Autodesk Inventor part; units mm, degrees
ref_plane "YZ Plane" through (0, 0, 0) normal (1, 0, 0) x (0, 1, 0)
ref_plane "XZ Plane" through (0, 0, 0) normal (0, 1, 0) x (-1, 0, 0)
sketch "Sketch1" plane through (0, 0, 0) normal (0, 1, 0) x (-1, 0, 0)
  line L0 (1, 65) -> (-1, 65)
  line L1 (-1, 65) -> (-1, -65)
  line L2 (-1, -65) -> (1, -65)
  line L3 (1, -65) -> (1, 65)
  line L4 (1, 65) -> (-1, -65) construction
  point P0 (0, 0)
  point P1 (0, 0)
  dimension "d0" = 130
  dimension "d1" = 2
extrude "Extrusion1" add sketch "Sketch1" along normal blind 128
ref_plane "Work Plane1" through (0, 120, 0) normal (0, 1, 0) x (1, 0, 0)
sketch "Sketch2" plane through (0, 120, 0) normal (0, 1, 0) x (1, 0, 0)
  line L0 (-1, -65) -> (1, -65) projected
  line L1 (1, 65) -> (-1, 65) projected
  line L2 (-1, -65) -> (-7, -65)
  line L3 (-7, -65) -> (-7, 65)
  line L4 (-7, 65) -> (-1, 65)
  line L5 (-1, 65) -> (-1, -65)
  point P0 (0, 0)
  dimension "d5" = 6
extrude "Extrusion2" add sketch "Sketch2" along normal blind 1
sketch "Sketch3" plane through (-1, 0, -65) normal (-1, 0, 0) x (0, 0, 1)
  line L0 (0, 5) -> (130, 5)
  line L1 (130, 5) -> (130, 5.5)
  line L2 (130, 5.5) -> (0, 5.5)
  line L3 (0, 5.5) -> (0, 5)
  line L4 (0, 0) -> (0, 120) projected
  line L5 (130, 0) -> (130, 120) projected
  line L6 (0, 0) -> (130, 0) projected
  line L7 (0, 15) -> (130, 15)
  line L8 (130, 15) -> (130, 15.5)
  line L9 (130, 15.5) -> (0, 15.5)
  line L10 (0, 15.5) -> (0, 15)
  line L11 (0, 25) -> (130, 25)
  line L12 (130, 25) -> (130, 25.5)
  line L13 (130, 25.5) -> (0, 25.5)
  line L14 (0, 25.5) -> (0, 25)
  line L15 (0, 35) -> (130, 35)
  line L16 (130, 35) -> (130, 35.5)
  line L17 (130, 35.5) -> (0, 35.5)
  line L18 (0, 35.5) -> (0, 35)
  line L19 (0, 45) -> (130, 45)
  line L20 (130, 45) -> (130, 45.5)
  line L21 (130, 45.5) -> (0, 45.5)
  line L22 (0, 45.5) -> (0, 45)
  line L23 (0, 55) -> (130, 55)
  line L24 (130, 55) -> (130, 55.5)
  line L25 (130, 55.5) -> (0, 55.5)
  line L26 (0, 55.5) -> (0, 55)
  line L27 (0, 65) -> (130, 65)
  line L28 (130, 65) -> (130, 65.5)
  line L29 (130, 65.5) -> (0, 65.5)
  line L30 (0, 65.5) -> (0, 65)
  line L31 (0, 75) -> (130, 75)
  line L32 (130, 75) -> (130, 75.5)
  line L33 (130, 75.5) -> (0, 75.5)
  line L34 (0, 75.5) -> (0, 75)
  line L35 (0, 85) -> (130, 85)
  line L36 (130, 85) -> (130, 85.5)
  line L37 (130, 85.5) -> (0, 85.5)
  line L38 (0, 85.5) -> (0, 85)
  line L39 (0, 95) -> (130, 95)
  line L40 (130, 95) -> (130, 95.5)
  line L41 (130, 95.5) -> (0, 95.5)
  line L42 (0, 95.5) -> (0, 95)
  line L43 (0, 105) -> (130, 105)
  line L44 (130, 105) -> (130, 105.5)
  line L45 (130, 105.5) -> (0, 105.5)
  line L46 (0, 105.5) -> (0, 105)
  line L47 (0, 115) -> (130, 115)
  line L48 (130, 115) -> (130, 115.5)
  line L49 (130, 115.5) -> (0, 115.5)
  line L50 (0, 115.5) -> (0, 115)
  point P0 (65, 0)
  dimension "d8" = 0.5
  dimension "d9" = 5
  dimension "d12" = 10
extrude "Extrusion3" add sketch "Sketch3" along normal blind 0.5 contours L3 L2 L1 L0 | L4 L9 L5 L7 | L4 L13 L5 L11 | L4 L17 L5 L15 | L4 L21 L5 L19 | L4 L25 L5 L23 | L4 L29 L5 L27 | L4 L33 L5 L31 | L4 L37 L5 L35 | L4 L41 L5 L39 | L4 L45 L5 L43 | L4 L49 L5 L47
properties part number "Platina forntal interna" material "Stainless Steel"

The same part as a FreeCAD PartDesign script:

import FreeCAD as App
import Part
import Sketcher

doc = App.newDocument("Part")
body = doc.addObject("PartDesign::Body", "Body")

sketch1 = body.newObject("Sketcher::SketchObject", "Sketch")
sketch1.AttachmentSupport = (doc.getObject("XZ_Plane"), [""])
sketch1.MapMode = "FlatFace"
sketch1.addGeometry(Part.LineSegment(App.Vector(-1, -65, 0), App.Vector(-1, 65, 0)), False)
sketch1.addGeometry(Part.LineSegment(App.Vector(-1, 65, 0), App.Vector(1, 65, 0)), False)
sketch1.addGeometry(Part.LineSegment(App.Vector(1, 65, 0), App.Vector(1, -65, 0)), False)
sketch1.addGeometry(Part.LineSegment(App.Vector(1, -65, 0), App.Vector(-1, -65, 0)), False)
sketch1.addConstraint(Sketcher.Constraint("Coincident", 0, 2, 1, 1))
sketch1.addConstraint(Sketcher.Constraint("Coincident", 1, 2, 2, 1))
sketch1.addConstraint(Sketcher.Constraint("Coincident", 2, 2, 3, 1))
sketch1.addConstraint(Sketcher.Constraint("Coincident", 3, 2, 0, 1))
sketch1.addConstraint(Sketcher.Constraint("Vertical", 0))
sketch1.addConstraint(Sketcher.Constraint("Horizontal", 1))
sketch1.addConstraint(Sketcher.Constraint("Vertical", 2))
sketch1.addConstraint(Sketcher.Constraint("Horizontal", 3))
sketch1.addConstraint(Sketcher.Constraint("Symmetric", 0, 2, 2, 2, -1, 1))
sketch1.addConstraint(Sketcher.Constraint("DistanceX", 1, 1, 1, 2, 2.0))
sketch1.addConstraint(Sketcher.Constraint("DistanceY", 0, 1, 0, 2, 130.0))
pad1 = body.newObject("PartDesign::Pad", "Pad")
pad1.Profile = sketch1
pad1.Length = 128
pad1.Reversed = True

sketch2 = body.newObject("Sketcher::SketchObject", "Sketch001")
sketch2.AttachmentSupport = (doc.getObject("XZ_Plane"), [""])
sketch2.MapMode = "FlatFace"
sketch2.AttachmentOffset = App.Placement(App.Vector(0, 0, -120), App.Rotation())
sketch2.addGeometry(Part.LineSegment(App.Vector(-7, 65, 0), App.Vector(-1, 65, 0)), False)
sketch2.addGeometry(Part.LineSegment(App.Vector(-1, 65, 0), App.Vector(-1, -65, 0)), False)
sketch2.addGeometry(Part.LineSegment(App.Vector(-1, -65, 0), App.Vector(-7, -65, 0)), False)
sketch2.addGeometry(Part.LineSegment(App.Vector(-7, -65, 0), App.Vector(-7, 65, 0)), False)
sketch2.addConstraint(Sketcher.Constraint("Coincident", 0, 2, 1, 1))
sketch2.addConstraint(Sketcher.Constraint("Coincident", 1, 2, 2, 1))
sketch2.addConstraint(Sketcher.Constraint("Coincident", 2, 2, 3, 1))
sketch2.addConstraint(Sketcher.Constraint("Coincident", 3, 2, 0, 1))
sketch2.addConstraint(Sketcher.Constraint("Horizontal", 0))
sketch2.addConstraint(Sketcher.Constraint("Vertical", 1))
sketch2.addConstraint(Sketcher.Constraint("Horizontal", 2))
sketch2.addConstraint(Sketcher.Constraint("Vertical", 3))
sketch2.addConstraint(Sketcher.Constraint("DistanceX", 0, 1, 0, 2, 6.0))
sketch2.addConstraint(Sketcher.Constraint("DistanceY", 1, 2, 1, 1, 130.0))
sketch2.addConstraint(Sketcher.Constraint("DistanceX", 0, 2, -1, 1, 1.0))
sketch2.addConstraint(Sketcher.Constraint("DistanceY", -1, 1, 0, 2, 65.0))
pad2 = body.newObject("PartDesign::Pad", "Pad001")
pad2.Profile = sketch2
pad2.Length = 1
pad2.Reversed = True

sketch3 = body.newObject("Sketcher::SketchObject", "Sketch002")
sketch3.AttachmentSupport = (doc.getObject("YZ_Plane"), [""])
sketch3.MapMode = "FlatFace"
sketch3.AttachmentOffset = App.Placement(App.Vector(0, 0, -1), App.Rotation())
sketch3.addGeometry(Part.LineSegment(App.Vector(5.5, -65, 0), App.Vector(5, -65, 0)), False)
sketch3.addGeometry(Part.LineSegment(App.Vector(5, -65, 0), App.Vector(5, 65, 0)), False)
sketch3.addGeometry(Part.LineSegment(App.Vector(5, 65, 0), App.Vector(5.5, 65, 0)), False)
sketch3.addGeometry(Part.LineSegment(App.Vector(5.5, 65, 0), App.Vector(5.5, -65, 0)), False)
sketch3.addGeometry(Part.LineSegment(App.Vector(15.5, -65, 0), App.Vector(15, -65, 0)), False)
sketch3.addGeometry(Part.LineSegment(App.Vector(15, -65, 0), App.Vector(15, 65, 0)), False)
sketch3.addGeometry(Part.LineSegment(App.Vector(15, 65, 0), App.Vector(15.5, 65, 0)), False)
sketch3.addGeometry(Part.LineSegment(App.Vector(15.5, 65, 0), App.Vector(15.5, -65, 0)), False)
sketch3.addGeometry(Part.LineSegment(App.Vector(25.5, -65, 0), App.Vector(25, -65, 0)), False)
sketch3.addGeometry(Part.LineSegment(App.Vector(25, -65, 0), App.Vector(25, 65, 0)), False)
sketch3.addGeometry(Part.LineSegment(App.Vector(25, 65, 0), App.Vector(25.5, 65, 0)), False)
sketch3.addGeometry(Part.LineSegment(App.Vector(25.5, 65, 0), App.Vector(25.5, -65, 0)), False)
sketch3.addGeometry(Part.LineSegment(App.Vector(35.5, -65, 0), App.Vector(35, -65, 0)), False)
sketch3.addGeometry(Part.LineSegment(App.Vector(35, -65, 0), App.Vector(35, 65, 0)), False)
sketch3.addGeometry(Part.LineSegment(App.Vector(35, 65, 0), App.Vector(35.5, 65, 0)), False)
sketch3.addGeometry(Part.LineSegment(App.Vector(35.5, 65, 0), App.Vector(35.5, -65, 0)), False)
sketch3.addGeometry(Part.LineSegment(App.Vector(45.5, -65, 0), App.Vector(45, -65, 0)), False)
sketch3.addGeometry(Part.LineSegment(App.Vector(45, -65, 0), App.Vector(45, 65, 0)), False)
sketch3.addGeometry(Part.LineSegment(App.Vector(45, 65, 0), App.Vector(45.5, 65, 0)), False)
sketch3.addGeometry(Part.LineSegment(App.Vector(45.5, 65, 0), App.Vector(45.5, -65, 0)), False)
sketch3.addGeometry(Part.LineSegment(App.Vector(55.5, -65, 0), App.Vector(55, -65, 0)), False)
sketch3.addGeometry(Part.LineSegment(App.Vector(55, -65, 0), App.Vector(55, 65, 0)), False)
sketch3.addGeometry(Part.LineSegment(App.Vector(55, 65, 0), App.Vector(55.5, 65, 0)), False)
sketch3.addGeometry(Part.LineSegment(App.Vector(55.5, 65, 0), App.Vector(55.5, -65, 0)), False)
sketch3.addGeometry(Part.LineSegment(App.Vector(65.5, -65, 0), App.Vector(65, -65, 0)), False)
sketch3.addGeometry(Part.LineSegment(App.Vector(65, -65, 0), App.Vector(65, 65, 0)), False)
sketch3.addGeometry(Part.LineSegment(App.Vector(65, 65, 0), App.Vector(65.5, 65, 0)), False)
sketch3.addGeometry(Part.LineSegment(App.Vector(65.5, 65, 0), App.Vector(65.5, -65, 0)), False)
sketch3.addGeometry(Part.LineSegment(App.Vector(75.5, -65, 0), App.Vector(75, -65, 0)), False)
sketch3.addGeometry(Part.LineSegment(App.Vector(75, -65, 0), App.Vector(75, 65, 0)), False)
sketch3.addGeometry(Part.LineSegment(App.Vector(75, 65, 0), App.Vector(75.5, 65, 0)), False)
sketch3.addGeometry(Part.LineSegment(App.Vector(75.5, 65, 0), App.Vector(75.5, -65, 0)), False)
sketch3.addGeometry(Part.LineSegment(App.Vector(85.5, -65, 0), App.Vector(85, -65, 0)), False)
sketch3.addGeometry(Part.LineSegment(App.Vector(85, -65, 0), App.Vector(85, 65, 0)), False)
sketch3.addGeometry(Part.LineSegment(App.Vector(85, 65, 0), App.Vector(85.5, 65, 0)), False)
sketch3.addGeometry(Part.LineSegment(App.Vector(85.5, 65, 0), App.Vector(85.5, -65, 0)), False)
sketch3.addGeometry(Part.LineSegment(App.Vector(95.5, -65, 0), App.Vector(95, -65, 0)), False)
sketch3.addGeometry(Part.LineSegment(App.Vector(95, -65, 0), App.Vector(95, 65, 0)), False)
sketch3.addGeometry(Part.LineSegment(App.Vector(95, 65, 0), App.Vector(95.5, 65, 0)), False)
sketch3.addGeometry(Part.LineSegment(App.Vector(95.5, 65, 0), App.Vector(95.5, -65, 0)), False)
sketch3.addGeometry(Part.LineSegment(App.Vector(105.5, -65, 0), App.Vector(105, -65, 0)), False)
sketch3.addGeometry(Part.LineSegment(App.Vector(105, -65, 0), App.Vector(105, 65, 0)), False)
sketch3.addGeometry(Part.LineSegment(App.Vector(105, 65, 0), App.Vector(105.5, 65, 0)), False)
sketch3.addGeometry(Part.LineSegment(App.Vector(105.5, 65, 0), App.Vector(105.5, -65, 0)), False)
sketch3.addGeometry(Part.LineSegment(App.Vector(115.5, -65, 0), App.Vector(115, -65, 0)), False)
sketch3.addGeometry(Part.LineSegment(App.Vector(115, -65, 0), App.Vector(115, 65, 0)), False)
sketch3.addGeometry(Part.LineSegment(App.Vector(115, 65, 0), App.Vector(115.5, 65, 0)), False)
sketch3.addGeometry(Part.LineSegment(App.Vector(115.5, 65, 0), App.Vector(115.5, -65, 0)), False)
sketch3.addConstraint(Sketcher.Constraint("Coincident", 0, 2, 1, 1))
sketch3.addConstraint(Sketcher.Constraint("Coincident", 1, 2, 2, 1))
sketch3.addConstraint(Sketcher.Constraint("Coincident", 2, 2, 3, 1))
sketch3.addConstraint(Sketcher.Constraint("Coincident", 3, 2, 0, 1))
sketch3.addConstraint(Sketcher.Constraint("Coincident", 4, 2, 5, 1))
sketch3.addConstraint(Sketcher.Constraint("Coincident", 5, 2, 6, 1))
sketch3.addConstraint(Sketcher.Constraint("Coincident", 6, 2, 7, 1))
sketch3.addConstraint(Sketcher.Constraint("Coincident", 7, 2, 4, 1))
sketch3.addConstraint(Sketcher.Constraint("Coincident", 8, 2, 9, 1))
sketch3.addConstraint(Sketcher.Constraint("Coincident", 9, 2, 10, 1))
sketch3.addConstraint(Sketcher.Constraint("Coincident", 10, 2, 11, 1))
sketch3.addConstraint(Sketcher.Constraint("Coincident", 11, 2, 8, 1))
sketch3.addConstraint(Sketcher.Constraint("Coincident", 12, 2, 13, 1))
sketch3.addConstraint(Sketcher.Constraint("Coincident", 13, 2, 14, 1))
sketch3.addConstraint(Sketcher.Constraint("Coincident", 14, 2, 15, 1))
sketch3.addConstraint(Sketcher.Constraint("Coincident", 15, 2, 12, 1))
sketch3.addConstraint(Sketcher.Constraint("Coincident", 16, 2, 17, 1))
sketch3.addConstraint(Sketcher.Constraint("Coincident", 17, 2, 18, 1))
sketch3.addConstraint(Sketcher.Constraint("Coincident", 18, 2, 19, 1))
sketch3.addConstraint(Sketcher.Constraint("Coincident", 19, 2, 16, 1))
sketch3.addConstraint(Sketcher.Constraint("Coincident", 20, 2, 21, 1))
sketch3.addConstraint(Sketcher.Constraint("Coincident", 21, 2, 22, 1))
sketch3.addConstraint(Sketcher.Constraint("Coincident", 22, 2, 23, 1))
sketch3.addConstraint(Sketcher.Constraint("Coincident", 23, 2, 20, 1))
sketch3.addConstraint(Sketcher.Constraint("Coincident", 24, 2, 25, 1))
sketch3.addConstraint(Sketcher.Constraint("Coincident", 25, 2, 26, 1))
sketch3.addConstraint(Sketcher.Constraint("Coincident", 26, 2, 27, 1))
sketch3.addConstraint(Sketcher.Constraint("Coincident", 27, 2, 24, 1))
sketch3.addConstraint(Sketcher.Constraint("Coincident", 28, 2, 29, 1))
sketch3.addConstraint(Sketcher.Constraint("Coincident", 29, 2, 30, 1))
sketch3.addConstraint(Sketcher.Constraint("Coincident", 30, 2, 31, 1))
sketch3.addConstraint(Sketcher.Constraint("Coincident", 31, 2, 28, 1))
sketch3.addConstraint(Sketcher.Constraint("Coincident", 32, 2, 33, 1))
sketch3.addConstraint(Sketcher.Constraint("Coincident", 33, 2, 34, 1))
sketch3.addConstraint(Sketcher.Constraint("Coincident", 34, 2, 35, 1))
sketch3.addConstraint(Sketcher.Constraint("Coincident", 35, 2, 32, 1))
sketch3.addConstraint(Sketcher.Constraint("Coincident", 36, 2, 37, 1))
sketch3.addConstraint(Sketcher.Constraint("Coincident", 37, 2, 38, 1))
sketch3.addConstraint(Sketcher.Constraint("Coincident", 38, 2, 39, 1))
sketch3.addConstraint(Sketcher.Constraint("Coincident", 39, 2, 36, 1))
sketch3.addConstraint(Sketcher.Constraint("Coincident", 40, 2, 41, 1))
sketch3.addConstraint(Sketcher.Constraint("Coincident", 41, 2, 42, 1))
sketch3.addConstraint(Sketcher.Constraint("Coincident", 42, 2, 43, 1))
sketch3.addConstraint(Sketcher.Constraint("Coincident", 43, 2, 40, 1))
sketch3.addConstraint(Sketcher.Constraint("Coincident", 44, 2, 45, 1))
sketch3.addConstraint(Sketcher.Constraint("Coincident", 45, 2, 46, 1))
sketch3.addConstraint(Sketcher.Constraint("Coincident", 46, 2, 47, 1))
sketch3.addConstraint(Sketcher.Constraint("Coincident", 47, 2, 44, 1))
sketch3.addConstraint(Sketcher.Constraint("Horizontal", 0))
sketch3.addConstraint(Sketcher.Constraint("Vertical", 1))
sketch3.addConstraint(Sketcher.Constraint("Horizontal", 2))
sketch3.addConstraint(Sketcher.Constraint("Vertical", 3))
sketch3.addConstraint(Sketcher.Constraint("Horizontal", 4))
sketch3.addConstraint(Sketcher.Constraint("Vertical", 5))
sketch3.addConstraint(Sketcher.Constraint("Horizontal", 6))
sketch3.addConstraint(Sketcher.Constraint("Vertical", 7))
sketch3.addConstraint(Sketcher.Constraint("Horizontal", 8))
sketch3.addConstraint(Sketcher.Constraint("Vertical", 9))
sketch3.addConstraint(Sketcher.Constraint("Horizontal", 10))
sketch3.addConstraint(Sketcher.Constraint("Vertical", 11))
sketch3.addConstraint(Sketcher.Constraint("Horizontal", 12))
sketch3.addConstraint(Sketcher.Constraint("Vertical", 13))
sketch3.addConstraint(Sketcher.Constraint("Horizontal", 14))
sketch3.addConstraint(Sketcher.Constraint("Vertical", 15))
sketch3.addConstraint(Sketcher.Constraint("Horizontal", 16))
sketch3.addConstraint(Sketcher.Constraint("Vertical", 17))
sketch3.addConstraint(Sketcher.Constraint("Horizontal", 18))
sketch3.addConstraint(Sketcher.Constraint("Vertical", 19))
sketch3.addConstraint(Sketcher.Constraint("Horizontal", 20))
sketch3.addConstraint(Sketcher.Constraint("Vertical", 21))
sketch3.addConstraint(Sketcher.Constraint("Horizontal", 22))
sketch3.addConstraint(Sketcher.Constraint("Vertical", 23))
sketch3.addConstraint(Sketcher.Constraint("Horizontal", 24))
sketch3.addConstraint(Sketcher.Constraint("Vertical", 25))
sketch3.addConstraint(Sketcher.Constraint("Horizontal", 26))
sketch3.addConstraint(Sketcher.Constraint("Vertical", 27))
sketch3.addConstraint(Sketcher.Constraint("Horizontal", 28))
sketch3.addConstraint(Sketcher.Constraint("Vertical", 29))
sketch3.addConstraint(Sketcher.Constraint("Horizontal", 30))
sketch3.addConstraint(Sketcher.Constraint("Vertical", 31))
sketch3.addConstraint(Sketcher.Constraint("Horizontal", 32))
sketch3.addConstraint(Sketcher.Constraint("Vertical", 33))
sketch3.addConstraint(Sketcher.Constraint("Horizontal", 34))
sketch3.addConstraint(Sketcher.Constraint("Vertical", 35))
sketch3.addConstraint(Sketcher.Constraint("Horizontal", 36))
sketch3.addConstraint(Sketcher.Constraint("Vertical", 37))
sketch3.addConstraint(Sketcher.Constraint("Horizontal", 38))
sketch3.addConstraint(Sketcher.Constraint("Vertical", 39))
sketch3.addConstraint(Sketcher.Constraint("Horizontal", 40))
sketch3.addConstraint(Sketcher.Constraint("Vertical", 41))
sketch3.addConstraint(Sketcher.Constraint("Horizontal", 42))
sketch3.addConstraint(Sketcher.Constraint("Vertical", 43))
sketch3.addConstraint(Sketcher.Constraint("Horizontal", 44))
sketch3.addConstraint(Sketcher.Constraint("Vertical", 45))
sketch3.addConstraint(Sketcher.Constraint("Horizontal", 46))
sketch3.addConstraint(Sketcher.Constraint("Vertical", 47))
sketch3.addConstraint(Sketcher.Constraint("Horizontal", 3, 2, 4, 2))
sketch3.addConstraint(Sketcher.Constraint("Horizontal", 2, 2, 5, 2))
sketch3.addConstraint(Sketcher.Constraint("Horizontal", 7, 2, 8, 2))
sketch3.addConstraint(Sketcher.Constraint("Horizontal", 6, 2, 9, 2))
sketch3.addConstraint(Sketcher.Constraint("Horizontal", 11, 2, 12, 2))
sketch3.addConstraint(Sketcher.Constraint("Horizontal", 10, 2, 13, 2))
sketch3.addConstraint(Sketcher.Constraint("Horizontal", 15, 2, 16, 2))
sketch3.addConstraint(Sketcher.Constraint("Horizontal", 14, 2, 17, 2))
sketch3.addConstraint(Sketcher.Constraint("Horizontal", 19, 2, 20, 2))
sketch3.addConstraint(Sketcher.Constraint("Horizontal", 18, 2, 21, 2))
sketch3.addConstraint(Sketcher.Constraint("Horizontal", 23, 2, 24, 2))
sketch3.addConstraint(Sketcher.Constraint("Horizontal", 22, 2, 25, 2))
sketch3.addConstraint(Sketcher.Constraint("Horizontal", 27, 2, 28, 2))
sketch3.addConstraint(Sketcher.Constraint("Horizontal", 26, 2, 29, 2))
sketch3.addConstraint(Sketcher.Constraint("Horizontal", 31, 2, 32, 2))
sketch3.addConstraint(Sketcher.Constraint("Horizontal", 30, 2, 33, 2))
sketch3.addConstraint(Sketcher.Constraint("Horizontal", 35, 2, 36, 2))
sketch3.addConstraint(Sketcher.Constraint("Horizontal", 34, 2, 37, 2))
sketch3.addConstraint(Sketcher.Constraint("Horizontal", 39, 2, 40, 2))
sketch3.addConstraint(Sketcher.Constraint("Horizontal", 38, 2, 41, 2))
sketch3.addConstraint(Sketcher.Constraint("Horizontal", 43, 2, 44, 2))
sketch3.addConstraint(Sketcher.Constraint("Horizontal", 42, 2, 45, 2))
sketch3.addConstraint(Sketcher.Constraint("Equal", 2, 4))
sketch3.addConstraint(Sketcher.Constraint("Equal", 6, 8))
sketch3.addConstraint(Sketcher.Constraint("Equal", 10, 12))
sketch3.addConstraint(Sketcher.Constraint("Equal", 14, 16))
sketch3.addConstraint(Sketcher.Constraint("Equal", 18, 20))
sketch3.addConstraint(Sketcher.Constraint("Equal", 22, 24))
sketch3.addConstraint(Sketcher.Constraint("Equal", 26, 28))
sketch3.addConstraint(Sketcher.Constraint("Equal", 30, 32))
sketch3.addConstraint(Sketcher.Constraint("Equal", 34, 36))
sketch3.addConstraint(Sketcher.Constraint("Equal", 38, 40))
sketch3.addConstraint(Sketcher.Constraint("Equal", 42, 44))
sketch3.addConstraint(Sketcher.Constraint("DistanceX", 0, 2, 0, 1, 0.5))
sketch3.addConstraint(Sketcher.Constraint("DistanceX", -1, 1, 0, 2, 5.0))
sketch3.addConstraint(Sketcher.Constraint("DistanceX", 0, 2, 4, 2, 10.0))
sketch3.addConstraint(Sketcher.Constraint("DistanceX", 4, 2, 8, 2, 10.0))
sketch3.addConstraint(Sketcher.Constraint("DistanceX", 8, 2, 12, 2, 10.0))
sketch3.addConstraint(Sketcher.Constraint("DistanceX", 12, 2, 16, 2, 10.0))
sketch3.addConstraint(Sketcher.Constraint("DistanceX", 16, 2, 20, 2, 10.0))
sketch3.addConstraint(Sketcher.Constraint("DistanceX", 20, 2, 24, 2, 10.0))
sketch3.addConstraint(Sketcher.Constraint("DistanceX", 24, 2, 28, 2, 10.0))
sketch3.addConstraint(Sketcher.Constraint("DistanceX", 28, 2, 32, 2, 10.0))
sketch3.addConstraint(Sketcher.Constraint("DistanceX", 32, 2, 36, 2, 10.0))
sketch3.addConstraint(Sketcher.Constraint("DistanceX", 36, 2, 40, 2, 10.0))
sketch3.addConstraint(Sketcher.Constraint("DistanceX", 40, 2, 44, 2, 10.0))
sketch3.addConstraint(Sketcher.Constraint("DistanceY", 1, 1, 1, 2, 130.0))
sketch3.addConstraint(Sketcher.Constraint("DistanceY", 0, 2, -1, 1, 65.0))
pad3 = body.newObject("PartDesign::Pad", "Pad002")
pad3.Profile = sketch3
pad3.Length = 0.5
pad3.Reversed = True

doc.recompute()
